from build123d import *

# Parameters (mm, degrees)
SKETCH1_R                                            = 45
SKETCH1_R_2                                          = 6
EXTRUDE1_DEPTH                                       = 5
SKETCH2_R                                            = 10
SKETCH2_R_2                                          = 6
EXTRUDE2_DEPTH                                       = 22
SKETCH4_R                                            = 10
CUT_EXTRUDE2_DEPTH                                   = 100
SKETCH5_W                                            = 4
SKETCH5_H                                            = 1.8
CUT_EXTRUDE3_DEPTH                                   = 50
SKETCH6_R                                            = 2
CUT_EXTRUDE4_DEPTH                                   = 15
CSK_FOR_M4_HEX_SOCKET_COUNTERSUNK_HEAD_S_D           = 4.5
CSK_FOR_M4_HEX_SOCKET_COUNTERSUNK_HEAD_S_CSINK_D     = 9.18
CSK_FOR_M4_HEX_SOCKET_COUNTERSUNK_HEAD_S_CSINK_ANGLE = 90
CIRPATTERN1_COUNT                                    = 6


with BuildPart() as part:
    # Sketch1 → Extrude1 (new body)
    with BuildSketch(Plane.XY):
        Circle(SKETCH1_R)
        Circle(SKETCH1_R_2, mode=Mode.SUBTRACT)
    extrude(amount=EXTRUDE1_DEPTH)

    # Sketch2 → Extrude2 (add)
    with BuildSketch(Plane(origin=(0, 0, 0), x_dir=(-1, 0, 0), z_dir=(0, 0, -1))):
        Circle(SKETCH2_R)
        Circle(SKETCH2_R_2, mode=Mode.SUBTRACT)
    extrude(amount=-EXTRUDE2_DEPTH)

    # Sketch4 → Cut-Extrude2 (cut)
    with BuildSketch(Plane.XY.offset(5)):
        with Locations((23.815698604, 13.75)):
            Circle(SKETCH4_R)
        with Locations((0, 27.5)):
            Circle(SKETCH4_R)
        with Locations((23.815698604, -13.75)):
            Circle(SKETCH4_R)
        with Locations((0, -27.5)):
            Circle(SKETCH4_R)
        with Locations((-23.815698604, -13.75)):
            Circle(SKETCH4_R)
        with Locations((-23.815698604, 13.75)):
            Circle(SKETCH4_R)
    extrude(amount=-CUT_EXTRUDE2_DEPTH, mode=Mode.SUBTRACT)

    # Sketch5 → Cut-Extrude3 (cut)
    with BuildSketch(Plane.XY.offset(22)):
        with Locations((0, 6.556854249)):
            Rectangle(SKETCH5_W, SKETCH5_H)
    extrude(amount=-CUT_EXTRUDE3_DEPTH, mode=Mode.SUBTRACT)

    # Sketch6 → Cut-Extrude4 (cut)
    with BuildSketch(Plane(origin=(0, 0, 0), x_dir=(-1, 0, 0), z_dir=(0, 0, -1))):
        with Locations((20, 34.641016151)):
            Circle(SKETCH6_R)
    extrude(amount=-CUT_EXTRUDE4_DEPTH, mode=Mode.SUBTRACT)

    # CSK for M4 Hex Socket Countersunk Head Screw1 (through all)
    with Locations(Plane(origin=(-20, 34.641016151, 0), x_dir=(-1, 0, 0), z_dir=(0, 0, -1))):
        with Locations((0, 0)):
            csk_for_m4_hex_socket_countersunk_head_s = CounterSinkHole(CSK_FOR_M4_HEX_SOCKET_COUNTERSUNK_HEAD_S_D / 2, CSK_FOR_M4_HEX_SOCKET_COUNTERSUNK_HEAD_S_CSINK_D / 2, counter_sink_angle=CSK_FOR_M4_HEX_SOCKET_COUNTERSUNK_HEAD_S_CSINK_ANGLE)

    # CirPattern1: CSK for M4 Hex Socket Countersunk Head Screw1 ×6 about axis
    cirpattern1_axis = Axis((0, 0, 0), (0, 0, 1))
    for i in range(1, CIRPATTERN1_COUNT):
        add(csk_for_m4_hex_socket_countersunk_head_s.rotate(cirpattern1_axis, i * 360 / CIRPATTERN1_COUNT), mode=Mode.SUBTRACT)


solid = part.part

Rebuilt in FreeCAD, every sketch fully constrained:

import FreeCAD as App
import Part
import Sketcher

V = App.Vector

doc = App.newDocument("Part")
body = doc.addObject("PartDesign::Body", "Body")

sketch1 = body.newObject("Sketcher::SketchObject", "Sketch")
sketch1.AttachmentSupport = (doc.getObject("XY_Plane"), [""])
sketch1.MapMode = "FlatFace"
sketch1.addGeometry(Part.Circle(V(0, 0, 0), V(0, 0, 1), 45), False)
sketch1.addGeometry(Part.Circle(V(0, 0, 0), V(0, 0, 1), 6), False)
sketch1.addConstraint(Sketcher.Constraint("Coincident", 0, 3, -1, 1))
sketch1.addConstraint(Sketcher.Constraint("Coincident", 1, 3, -1, 1))
sketch1.addConstraint(Sketcher.Constraint("Diameter", 0, 90.0))
sketch1.addConstraint(Sketcher.Constraint("Diameter", 1, 12.0))
pad1 = body.newObject("PartDesign::Pad", "Pad")
pad1.Profile = sketch1
pad1.Length = 5

sketch2 = body.newObject("Sketcher::SketchObject", "Sketch001")
sketch2.AttachmentSupport = (doc.getObject("XY_Plane"), [""])
sketch2.MapMode = "FlatFace"
sketch2.addGeometry(Part.Circle(V(0, 0, 0), V(0, 0, 1), 10), False)
sketch2.addGeometry(Part.Circle(V(0, 0, 0), V(0, 0, 1), 6), False)
sketch2.addConstraint(Sketcher.Constraint("Coincident", 0, 3, -1, 1))
sketch2.addConstraint(Sketcher.Constraint("Coincident", 1, 3, -1, 1))
sketch2.addConstraint(Sketcher.Constraint("Diameter", 0, 20.0))
sketch2.addConstraint(Sketcher.Constraint("Diameter", 1, 12.0))
pad2 = body.newObject("PartDesign::Pad", "Pad001")
pad2.Profile = sketch2
pad2.Length = 22

sketch3 = body.newObject("Sketcher::SketchObject", "Sketch002")
sketch3.AttachmentSupport = (doc.getObject("XY_Plane"), [""])
sketch3.MapMode = "FlatFace"
sketch3.AttachmentOffset = App.Placement(V(0, 0, 5), App.Rotation())
sketch3.addGeometry(Part.Circle(V(23.815699, 13.75, 0), V(0, 0, 1), 10), False)
sketch3.addGeometry(Part.Circle(V(0, 27.5, 0), V(0, 0, 1), 10), False)
sketch3.addGeometry(Part.Circle(V(23.815699, -13.75, 0), V(0, 0, 1), 10), False)
sketch3.addGeometry(Part.Circle(V(0, -27.5, 0), V(0, 0, 1), 10), False)
sketch3.addGeometry(Part.Circle(V(-23.815699, -13.75, 0), V(0, 0, 1), 10), False)
sketch3.addGeometry(Part.Circle(V(-23.815699, 13.75, 0), V(0, 0, 1), 10), False)
sketch3.addConstraint(Sketcher.Constraint("Equal", 0, 1))
sketch3.addConstraint(Sketcher.Constraint("Equal", 1, 2))
sketch3.addConstraint(Sketcher.Constraint("Equal", 2, 3))
sketch3.addConstraint(Sketcher.Constraint("Equal", 3, 4))
sketch3.addConstraint(Sketcher.Constraint("Equal", 4, 5))
sketch3.addConstraint(Sketcher.Constraint("Symmetric", 1, 3, 3, 3, -1, 1))
sketch3.addConstraint(Sketcher.Constraint("Symmetric", 0, 3, 4, 3, -1, 1))
sketch3.addConstraint(Sketcher.Constraint("Symmetric", 2, 3, 5, 3, -1, 1))
sketch3.addConstraint(Sketcher.Constraint("Symmetric", 2, 3, 4, 3, -2))
sketch3.addConstraint(Sketcher.Constraint("PointOnObject", 1, 3, -2))
sketch3.addConstraint(Sketcher.Constraint("Diameter", 0, 20.0))
sketch3.addConstraint(Sketcher.Constraint("DistanceY", 3, 3, 1, 3, 55.0))
sketch3.addConstraint(Sketcher.Constraint("DistanceY", 2, 3, 0, 3, 27.5))
sketch3.addConstraint(Sketcher.Constraint("DistanceX", -1, 1, 0, 3, 23.815699))
pocket1 = body.newObject("PartDesign::Pocket", "Pocket")
pocket1.Profile = sketch3
pocket1.Length = 100

sketch4 = body.newObject("Sketcher::SketchObject", "Sketch003")
sketch4.AttachmentSupport = (doc.getObject("XY_Plane"), [""])
sketch4.MapMode = "FlatFace"
sketch4.AttachmentOffset = App.Placement(V(0, 0, 22), App.Rotation())
sketch4.addGeometry(Part.LineSegment(V(-2, 7.456854, 0), V(-2, 5.656854, 0)), False)
sketch4.addGeometry(Part.LineSegment(V(-2, 5.656854, 0), V(2, 5.656854, 0)), False)
sketch4.addGeometry(Part.LineSegment(V(2, 5.656854, 0), V(2, 7.456854, 0)), False)
sketch4.addGeometry(Part.LineSegment(V(2, 7.456854, 0), V(-2, 7.456854, 0)), False)
sketch4.addConstraint(Sketcher.Constraint("Coincident", 0, 2, 1, 1))
sketch4.addConstraint(Sketcher.Constraint("Coincident", 1, 2, 2, 1))
sketch4.addConstraint(Sketcher.Constraint("Coincident", 2, 2, 3, 1))
sketch4.addConstraint(Sketcher.Constraint("Coincident", 3, 2, 0, 1))
sketch4.addConstraint(Sketcher.Constraint("Vertical", 0))
sketch4.addConstraint(Sketcher.Constraint("Horizontal", 1))
sketch4.addConstraint(Sketcher.Constraint("Vertical", 2))
sketch4.addConstraint(Sketcher.Constraint("Horizontal", 3))
sketch4.addConstraint(Sketcher.Constraint("DistanceX", 1, 1, 1, 2, 4.0))
sketch4.addConstraint(Sketcher.Constraint("DistanceY", 0, 2, 0, 1, 1.8))
sketch4.addConstraint(Sketcher.Constraint("DistanceX", 0, 2, -1, 1, 2.0))
sketch4.addConstraint(Sketcher.Constraint("DistanceY", -1, 1, 0, 2, 5.656854))
pocket2 = body.newObject("PartDesign::Pocket", "Pocket001")
pocket2.Profile = sketch4
pocket2.Length = 50

sketch5 = body.newObject("Sketcher::SketchObject", "Sketch004")
sketch5.AttachmentSupport = (doc.getObject("XY_Plane"), [""])
sketch5.MapMode = "FlatFace"
sketch5.addGeometry(Part.Circle(V(-20, 34.641016, 0), V(0, 0, 1), 2), False)
sketch5.addConstraint(Sketcher.Constraint("Diameter", 0, 4.0))
sketch5.addConstraint(Sketcher.Constraint("DistanceX", 0, 3, -1, 1, 20.0))
sketch5.addConstraint(Sketcher.Constraint("DistanceY", -1, 1, 0, 3, 34.641016))
pocket3 = body.newObject("PartDesign::Pocket", "Pocket002")
pocket3.Profile = sketch5
pocket3.Length = 15
pocket3.Reversed = True

sketch6 = body.newObject("Sketcher::SketchObject", "Sketch005")
sketch6.AttachmentSupport = (doc.getObject("XY_Plane"), [""])
sketch6.MapMode = "FlatFace"
sketch6.addGeometry(Part.Circle(V(-20, 34.641016, 0), V(0, 0, 1), 2.25), False)
sketch6.addConstraint(Sketcher.Constraint("Diameter", 0, 4.5))
sketch6.addConstraint(Sketcher.Constraint("DistanceX", 0, 3, -1, 1, 20.0))
sketch6.addConstraint(Sketcher.Constraint("DistanceY", -1, 1, 0, 3, 34.641016))
doc.recompute()
hole = body.newObject("PartDesign::Hole", "Hole")
hole.Profile = sketch6
hole.ThreadType = "None"
hole.Diameter = 4.5
hole.DepthType = "ThroughAll"
hole.HoleCutType = "Countersink"
hole.HoleCutDiameter = 9.18
hole.HoleCutCountersinkAngle = 90
hole.Reversed = True
doc.recompute()

polarpattern = body.newObject("PartDesign::PolarPattern", "PolarPattern")
polarpattern.Originals = [hole]
polarpattern.Axis = (doc.getObject("Z_Axis"), [""])
polarpattern.Angle = 360
polarpattern.Occurrences = 6
body.Tip = polarpattern

doc.recompute()
